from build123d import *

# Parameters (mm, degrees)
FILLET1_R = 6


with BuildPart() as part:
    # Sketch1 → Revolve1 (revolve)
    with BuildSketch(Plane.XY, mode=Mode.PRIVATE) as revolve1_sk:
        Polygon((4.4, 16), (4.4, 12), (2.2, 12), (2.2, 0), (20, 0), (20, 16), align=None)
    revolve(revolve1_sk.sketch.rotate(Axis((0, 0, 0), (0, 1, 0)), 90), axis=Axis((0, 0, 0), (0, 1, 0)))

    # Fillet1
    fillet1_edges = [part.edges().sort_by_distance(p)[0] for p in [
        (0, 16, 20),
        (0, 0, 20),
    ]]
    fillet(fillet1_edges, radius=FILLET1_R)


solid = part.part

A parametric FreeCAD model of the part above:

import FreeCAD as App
import Part
import Sketcher
Q = App.Units.Quantity


def edges_at(feature, points):
    """Names of the edges that pass closest to the given points."""
    edges = feature.Shape.Edges
    near = lambda p: min(range(len(edges)), key=lambda i: edges[i].distToShape(Part.Vertex(*p))[0])
    return sorted({f"Edge{near(p) + 1}" for p in points})


def add_polygon(sketch, points):
    """Adds a closed chain of lines whose ends are joined by coincident constraints."""
    first, n = sketch.GeometryCount, len(points)
    for a, b in zip(points, points[1:] + points[:1]):
        sketch.addGeometry(Part.LineSegment(App.Vector(*a, 0), App.Vector(*b, 0)), False)
    for i in range(n):
        sketch.addConstraint(Sketcher.Constraint("Coincident", first + i, 2, first + (i + 1) % n, 1))

doc = App.newDocument("Part")
body = doc.addObject("PartDesign::Body", "Body")

sketch1 = doc.addObject("Sketcher::SketchObject", "Sketch")
body.addObject(sketch1)
sketch1.AttachmentSupport = (doc.XY_Plane, [""])
sketch1.MapMode = "FlatFace"
add_polygon(sketch1, [(4.4, 16), (4.4, 12), (2.2, 12), (2.2, 0), (20, 0), (20, 16)])
sketch1.addConstraint(Sketcher.Constraint("Vertical", 0))
sketch1.addConstraint(Sketcher.Constraint("Horizontal", 1))
sketch1.addConstraint(Sketcher.Constraint("Vertical", 2))
sketch1.addConstraint(Sketcher.Constraint("Horizontal", 3))
sketch1.addConstraint(Sketcher.Constraint("Vertical", 4))
sketch1.addConstraint(Sketcher.Constraint("Horizontal", 5))
sketch1.addConstraint(Sketcher.Constraint("PointOnObject", 2, 2, -1))
sketch1.addConstraint(Sketcher.Constraint("DistanceY", 0, 2, 0, 1, Q("4 mm")))
sketch1.addConstraint(Sketcher.Constraint("DistanceY", 2, 2, 2, 1, Q("12 mm")))
sketch1.addConstraint(Sketcher.Constraint("DistanceX", 1, 2, 1, 1, Q("2.2 mm")))
sketch1.addConstraint(Sketcher.Constraint("DistanceX", 3, 1, 3, 2, Q("17.8 mm")))
sketch1.addConstraint(Sketcher.Constraint("DistanceX", -1, 1, 3, 2, Q("20 mm")))
revolution = doc.addObject("PartDesign::Revolution", "Revolution")
body.addObject(revolution)
revolution.Profile = sketch1
revolution.ReferenceAxis = (sketch1, ["V_Axis"])
revolution.Angle = 360
doc.recompute()

fillet = doc.addObject("PartDesign::Fillet", "Fillet")
body.addObject(fillet)
fillet.Base = (revolution, edges_at(revolution, [(0, 16, 20), (0, 0, 20)]))
fillet.Radius = 6

doc.recompute()
